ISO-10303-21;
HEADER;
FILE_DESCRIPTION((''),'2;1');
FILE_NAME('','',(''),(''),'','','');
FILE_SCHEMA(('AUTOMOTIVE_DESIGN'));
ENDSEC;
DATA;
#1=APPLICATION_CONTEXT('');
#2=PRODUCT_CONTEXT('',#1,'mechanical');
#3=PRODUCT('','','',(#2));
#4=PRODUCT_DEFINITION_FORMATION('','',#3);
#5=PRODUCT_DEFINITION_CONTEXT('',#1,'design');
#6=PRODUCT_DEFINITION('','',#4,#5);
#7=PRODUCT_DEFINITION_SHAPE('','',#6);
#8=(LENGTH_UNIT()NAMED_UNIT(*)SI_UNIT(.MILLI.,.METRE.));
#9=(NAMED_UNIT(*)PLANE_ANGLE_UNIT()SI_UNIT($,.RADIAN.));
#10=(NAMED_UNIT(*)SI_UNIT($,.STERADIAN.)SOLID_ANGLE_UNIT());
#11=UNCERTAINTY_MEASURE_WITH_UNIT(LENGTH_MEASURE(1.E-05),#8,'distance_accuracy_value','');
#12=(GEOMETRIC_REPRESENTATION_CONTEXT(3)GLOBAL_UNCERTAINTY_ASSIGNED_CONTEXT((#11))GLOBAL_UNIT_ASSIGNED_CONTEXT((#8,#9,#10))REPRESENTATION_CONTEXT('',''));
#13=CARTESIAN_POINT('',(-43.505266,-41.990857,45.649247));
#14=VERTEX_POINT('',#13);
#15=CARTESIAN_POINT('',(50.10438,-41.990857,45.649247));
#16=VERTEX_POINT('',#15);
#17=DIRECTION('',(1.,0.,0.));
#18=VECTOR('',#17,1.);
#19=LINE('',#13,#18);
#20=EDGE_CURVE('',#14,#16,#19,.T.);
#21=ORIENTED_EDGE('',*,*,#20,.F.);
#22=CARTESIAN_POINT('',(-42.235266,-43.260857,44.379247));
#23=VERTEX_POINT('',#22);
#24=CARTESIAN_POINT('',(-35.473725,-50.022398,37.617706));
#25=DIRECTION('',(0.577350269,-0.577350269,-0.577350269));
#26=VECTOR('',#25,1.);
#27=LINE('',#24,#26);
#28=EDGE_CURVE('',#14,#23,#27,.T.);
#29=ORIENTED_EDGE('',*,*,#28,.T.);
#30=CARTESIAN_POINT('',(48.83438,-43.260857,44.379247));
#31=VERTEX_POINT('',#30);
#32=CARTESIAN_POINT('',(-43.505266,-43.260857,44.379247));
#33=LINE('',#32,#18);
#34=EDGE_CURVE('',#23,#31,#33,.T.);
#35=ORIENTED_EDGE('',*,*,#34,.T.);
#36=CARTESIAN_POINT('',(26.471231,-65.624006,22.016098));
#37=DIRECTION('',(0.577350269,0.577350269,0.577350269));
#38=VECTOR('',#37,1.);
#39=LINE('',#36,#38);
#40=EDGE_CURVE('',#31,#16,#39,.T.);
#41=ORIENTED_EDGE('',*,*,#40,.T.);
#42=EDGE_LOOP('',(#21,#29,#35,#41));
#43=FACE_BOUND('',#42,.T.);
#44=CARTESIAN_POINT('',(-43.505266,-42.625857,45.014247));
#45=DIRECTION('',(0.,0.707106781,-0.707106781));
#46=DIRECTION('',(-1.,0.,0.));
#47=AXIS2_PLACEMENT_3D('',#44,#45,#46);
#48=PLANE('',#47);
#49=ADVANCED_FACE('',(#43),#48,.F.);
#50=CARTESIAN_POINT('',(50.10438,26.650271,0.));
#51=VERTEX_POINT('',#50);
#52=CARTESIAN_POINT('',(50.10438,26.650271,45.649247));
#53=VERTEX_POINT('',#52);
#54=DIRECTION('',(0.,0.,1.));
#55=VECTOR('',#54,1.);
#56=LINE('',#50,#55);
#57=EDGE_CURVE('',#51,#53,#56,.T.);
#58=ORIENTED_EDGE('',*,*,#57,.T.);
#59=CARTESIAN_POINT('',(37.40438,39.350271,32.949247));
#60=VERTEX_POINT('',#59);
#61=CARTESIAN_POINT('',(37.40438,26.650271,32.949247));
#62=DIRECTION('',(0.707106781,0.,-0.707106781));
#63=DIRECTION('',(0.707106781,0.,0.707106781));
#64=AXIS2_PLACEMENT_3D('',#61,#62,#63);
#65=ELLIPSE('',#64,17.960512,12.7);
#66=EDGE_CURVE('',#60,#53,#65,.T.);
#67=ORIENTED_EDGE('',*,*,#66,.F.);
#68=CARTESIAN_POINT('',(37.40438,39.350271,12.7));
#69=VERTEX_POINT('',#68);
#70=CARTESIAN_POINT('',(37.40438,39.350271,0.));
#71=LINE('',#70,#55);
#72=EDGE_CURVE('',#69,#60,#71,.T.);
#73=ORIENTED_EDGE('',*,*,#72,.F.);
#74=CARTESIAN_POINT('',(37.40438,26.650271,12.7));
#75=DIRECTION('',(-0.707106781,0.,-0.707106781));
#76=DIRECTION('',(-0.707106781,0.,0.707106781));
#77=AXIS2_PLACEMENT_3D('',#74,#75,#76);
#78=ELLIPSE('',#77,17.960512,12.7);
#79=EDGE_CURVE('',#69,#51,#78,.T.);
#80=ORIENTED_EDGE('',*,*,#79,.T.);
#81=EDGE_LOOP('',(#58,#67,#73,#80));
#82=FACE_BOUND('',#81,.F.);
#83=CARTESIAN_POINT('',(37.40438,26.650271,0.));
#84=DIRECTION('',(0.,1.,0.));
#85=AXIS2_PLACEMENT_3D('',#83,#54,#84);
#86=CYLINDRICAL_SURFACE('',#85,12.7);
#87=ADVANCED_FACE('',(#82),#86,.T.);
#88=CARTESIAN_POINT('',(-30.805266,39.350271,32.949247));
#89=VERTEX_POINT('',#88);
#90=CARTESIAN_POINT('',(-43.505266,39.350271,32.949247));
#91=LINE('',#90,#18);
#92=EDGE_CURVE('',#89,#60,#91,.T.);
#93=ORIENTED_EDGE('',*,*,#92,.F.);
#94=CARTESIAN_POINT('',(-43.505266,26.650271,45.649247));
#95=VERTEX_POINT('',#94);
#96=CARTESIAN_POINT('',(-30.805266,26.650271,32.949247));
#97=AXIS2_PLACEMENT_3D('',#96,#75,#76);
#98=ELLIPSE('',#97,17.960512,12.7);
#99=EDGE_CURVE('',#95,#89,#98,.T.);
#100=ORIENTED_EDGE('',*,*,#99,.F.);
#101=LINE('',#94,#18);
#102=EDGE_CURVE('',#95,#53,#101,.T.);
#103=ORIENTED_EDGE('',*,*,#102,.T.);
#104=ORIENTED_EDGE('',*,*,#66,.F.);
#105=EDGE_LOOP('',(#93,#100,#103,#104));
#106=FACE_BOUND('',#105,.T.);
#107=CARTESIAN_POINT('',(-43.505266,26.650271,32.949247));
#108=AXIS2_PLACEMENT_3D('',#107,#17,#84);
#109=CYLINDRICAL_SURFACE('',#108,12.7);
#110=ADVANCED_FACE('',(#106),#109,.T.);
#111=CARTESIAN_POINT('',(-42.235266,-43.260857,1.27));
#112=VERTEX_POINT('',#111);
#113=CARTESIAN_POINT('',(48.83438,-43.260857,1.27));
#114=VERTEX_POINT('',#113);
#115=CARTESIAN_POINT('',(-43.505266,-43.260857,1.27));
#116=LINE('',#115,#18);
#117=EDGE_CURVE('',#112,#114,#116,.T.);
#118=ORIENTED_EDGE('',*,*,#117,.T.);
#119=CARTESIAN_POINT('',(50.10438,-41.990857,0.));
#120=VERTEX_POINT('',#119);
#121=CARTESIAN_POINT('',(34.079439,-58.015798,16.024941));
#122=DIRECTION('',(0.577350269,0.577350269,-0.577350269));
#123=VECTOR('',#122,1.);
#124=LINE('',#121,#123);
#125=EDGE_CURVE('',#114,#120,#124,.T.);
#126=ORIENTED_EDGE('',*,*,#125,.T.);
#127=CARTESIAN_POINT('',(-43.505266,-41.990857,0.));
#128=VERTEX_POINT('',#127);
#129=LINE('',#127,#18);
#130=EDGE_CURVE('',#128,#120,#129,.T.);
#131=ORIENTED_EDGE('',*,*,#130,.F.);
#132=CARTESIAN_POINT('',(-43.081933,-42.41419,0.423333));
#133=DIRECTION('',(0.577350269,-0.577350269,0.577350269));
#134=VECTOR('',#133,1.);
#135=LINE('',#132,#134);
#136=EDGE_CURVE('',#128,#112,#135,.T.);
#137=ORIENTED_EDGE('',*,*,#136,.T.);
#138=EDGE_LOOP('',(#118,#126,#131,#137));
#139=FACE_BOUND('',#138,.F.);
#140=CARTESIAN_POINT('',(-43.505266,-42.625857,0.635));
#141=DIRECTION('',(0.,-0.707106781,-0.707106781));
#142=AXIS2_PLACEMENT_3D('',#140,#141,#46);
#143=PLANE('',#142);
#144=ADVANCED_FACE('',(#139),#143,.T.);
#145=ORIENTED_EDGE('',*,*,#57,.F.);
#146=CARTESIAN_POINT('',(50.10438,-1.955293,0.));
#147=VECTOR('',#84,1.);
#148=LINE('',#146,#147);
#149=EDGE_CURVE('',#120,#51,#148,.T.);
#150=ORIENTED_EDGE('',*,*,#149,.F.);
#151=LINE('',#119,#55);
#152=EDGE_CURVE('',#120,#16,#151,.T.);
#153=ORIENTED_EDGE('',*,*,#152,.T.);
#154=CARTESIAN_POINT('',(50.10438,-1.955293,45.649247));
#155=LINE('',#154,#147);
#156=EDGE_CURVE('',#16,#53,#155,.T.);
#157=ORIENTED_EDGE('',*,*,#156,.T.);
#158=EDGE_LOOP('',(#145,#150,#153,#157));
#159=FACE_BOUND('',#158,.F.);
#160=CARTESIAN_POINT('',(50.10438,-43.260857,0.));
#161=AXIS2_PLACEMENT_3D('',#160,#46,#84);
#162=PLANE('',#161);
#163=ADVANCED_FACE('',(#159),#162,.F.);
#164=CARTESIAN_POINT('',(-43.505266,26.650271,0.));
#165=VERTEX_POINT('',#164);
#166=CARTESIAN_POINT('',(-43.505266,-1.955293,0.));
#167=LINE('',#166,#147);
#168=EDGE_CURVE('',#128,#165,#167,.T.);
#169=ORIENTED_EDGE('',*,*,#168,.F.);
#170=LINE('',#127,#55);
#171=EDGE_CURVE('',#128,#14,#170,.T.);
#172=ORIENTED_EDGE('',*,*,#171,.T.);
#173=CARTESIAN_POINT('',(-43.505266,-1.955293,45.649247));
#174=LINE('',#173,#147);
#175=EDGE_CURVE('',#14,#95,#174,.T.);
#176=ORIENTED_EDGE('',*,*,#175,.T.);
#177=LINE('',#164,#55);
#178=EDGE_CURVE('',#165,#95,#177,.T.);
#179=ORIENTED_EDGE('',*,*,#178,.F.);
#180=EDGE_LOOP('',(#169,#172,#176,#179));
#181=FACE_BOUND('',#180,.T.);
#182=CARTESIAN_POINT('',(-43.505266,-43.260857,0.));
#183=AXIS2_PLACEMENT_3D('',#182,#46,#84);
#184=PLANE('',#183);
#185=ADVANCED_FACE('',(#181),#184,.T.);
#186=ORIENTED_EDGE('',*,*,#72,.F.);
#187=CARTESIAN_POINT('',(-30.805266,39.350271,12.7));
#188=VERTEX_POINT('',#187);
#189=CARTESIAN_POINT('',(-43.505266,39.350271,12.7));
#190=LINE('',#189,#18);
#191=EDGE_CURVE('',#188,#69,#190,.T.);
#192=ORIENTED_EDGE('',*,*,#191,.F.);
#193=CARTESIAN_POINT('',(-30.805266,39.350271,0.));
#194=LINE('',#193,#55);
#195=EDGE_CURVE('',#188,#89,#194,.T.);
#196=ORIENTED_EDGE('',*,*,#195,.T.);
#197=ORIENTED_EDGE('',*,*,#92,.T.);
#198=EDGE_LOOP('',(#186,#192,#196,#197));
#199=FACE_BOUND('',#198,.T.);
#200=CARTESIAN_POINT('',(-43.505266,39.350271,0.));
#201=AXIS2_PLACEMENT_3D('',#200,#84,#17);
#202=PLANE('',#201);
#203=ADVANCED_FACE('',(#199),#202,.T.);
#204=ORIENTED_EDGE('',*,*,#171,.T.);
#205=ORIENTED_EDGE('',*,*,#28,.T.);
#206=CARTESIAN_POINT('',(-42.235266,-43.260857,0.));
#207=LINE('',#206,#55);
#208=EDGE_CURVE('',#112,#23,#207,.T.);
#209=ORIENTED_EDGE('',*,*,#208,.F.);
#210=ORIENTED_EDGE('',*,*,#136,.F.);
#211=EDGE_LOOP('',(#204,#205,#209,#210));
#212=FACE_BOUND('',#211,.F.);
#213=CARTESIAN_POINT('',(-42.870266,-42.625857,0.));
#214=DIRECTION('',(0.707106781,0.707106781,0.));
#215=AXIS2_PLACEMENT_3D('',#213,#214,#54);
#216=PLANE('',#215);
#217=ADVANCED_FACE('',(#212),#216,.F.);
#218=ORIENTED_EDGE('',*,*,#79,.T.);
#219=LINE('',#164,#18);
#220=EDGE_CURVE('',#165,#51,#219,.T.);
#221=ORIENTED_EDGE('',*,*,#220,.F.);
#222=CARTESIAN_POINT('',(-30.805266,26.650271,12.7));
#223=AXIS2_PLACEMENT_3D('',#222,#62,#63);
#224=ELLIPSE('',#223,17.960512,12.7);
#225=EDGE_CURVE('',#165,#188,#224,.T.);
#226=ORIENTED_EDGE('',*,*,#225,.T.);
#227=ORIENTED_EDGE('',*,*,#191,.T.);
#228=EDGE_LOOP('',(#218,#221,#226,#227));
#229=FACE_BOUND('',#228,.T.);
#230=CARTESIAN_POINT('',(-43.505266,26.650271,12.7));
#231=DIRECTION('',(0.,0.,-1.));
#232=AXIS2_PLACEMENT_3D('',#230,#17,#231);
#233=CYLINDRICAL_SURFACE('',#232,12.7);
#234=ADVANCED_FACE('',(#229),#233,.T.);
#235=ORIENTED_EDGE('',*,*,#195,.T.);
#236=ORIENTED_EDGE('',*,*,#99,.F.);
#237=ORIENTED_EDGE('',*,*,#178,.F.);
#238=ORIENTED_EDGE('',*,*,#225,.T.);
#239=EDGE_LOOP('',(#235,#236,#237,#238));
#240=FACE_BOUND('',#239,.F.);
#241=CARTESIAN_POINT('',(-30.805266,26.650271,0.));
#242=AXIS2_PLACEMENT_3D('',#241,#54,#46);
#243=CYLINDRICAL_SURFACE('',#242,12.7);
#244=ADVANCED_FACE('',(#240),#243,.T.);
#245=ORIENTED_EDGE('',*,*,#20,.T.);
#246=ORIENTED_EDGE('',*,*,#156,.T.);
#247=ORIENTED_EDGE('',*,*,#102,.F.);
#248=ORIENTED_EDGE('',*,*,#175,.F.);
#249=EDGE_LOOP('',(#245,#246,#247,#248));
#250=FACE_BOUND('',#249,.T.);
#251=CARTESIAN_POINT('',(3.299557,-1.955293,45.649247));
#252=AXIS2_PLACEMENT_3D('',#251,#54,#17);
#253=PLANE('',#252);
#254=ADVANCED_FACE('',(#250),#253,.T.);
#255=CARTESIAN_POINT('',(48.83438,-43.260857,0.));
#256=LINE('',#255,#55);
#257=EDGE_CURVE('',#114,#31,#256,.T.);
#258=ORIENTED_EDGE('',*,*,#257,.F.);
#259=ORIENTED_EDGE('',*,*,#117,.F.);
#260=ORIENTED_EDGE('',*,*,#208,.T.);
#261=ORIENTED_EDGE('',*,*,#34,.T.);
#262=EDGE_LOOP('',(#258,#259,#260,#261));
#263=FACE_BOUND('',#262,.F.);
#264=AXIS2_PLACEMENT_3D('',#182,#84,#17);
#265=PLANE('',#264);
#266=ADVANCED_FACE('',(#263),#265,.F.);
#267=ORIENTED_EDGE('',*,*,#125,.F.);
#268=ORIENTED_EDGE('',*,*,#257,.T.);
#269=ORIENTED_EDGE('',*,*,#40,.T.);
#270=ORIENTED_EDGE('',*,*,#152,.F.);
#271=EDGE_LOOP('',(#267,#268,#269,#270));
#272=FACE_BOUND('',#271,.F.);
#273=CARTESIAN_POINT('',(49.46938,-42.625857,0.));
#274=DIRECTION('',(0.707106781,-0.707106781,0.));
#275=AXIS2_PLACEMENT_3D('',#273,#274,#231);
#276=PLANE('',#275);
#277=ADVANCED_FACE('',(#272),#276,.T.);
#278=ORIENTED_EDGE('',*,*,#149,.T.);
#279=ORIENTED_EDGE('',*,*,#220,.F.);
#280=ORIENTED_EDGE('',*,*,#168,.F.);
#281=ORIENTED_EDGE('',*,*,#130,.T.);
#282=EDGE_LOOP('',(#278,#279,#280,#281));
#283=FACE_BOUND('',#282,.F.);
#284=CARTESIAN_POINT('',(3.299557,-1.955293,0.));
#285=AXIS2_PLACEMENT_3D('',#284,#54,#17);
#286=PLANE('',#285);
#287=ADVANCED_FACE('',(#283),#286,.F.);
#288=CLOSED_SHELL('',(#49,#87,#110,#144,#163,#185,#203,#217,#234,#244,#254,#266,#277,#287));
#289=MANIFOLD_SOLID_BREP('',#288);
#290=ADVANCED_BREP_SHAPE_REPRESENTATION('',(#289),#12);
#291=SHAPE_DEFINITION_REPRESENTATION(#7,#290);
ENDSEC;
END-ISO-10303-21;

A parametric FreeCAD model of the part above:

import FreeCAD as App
import Part
import Sketcher

V = App.Vector
Q = App.Units.Quantity


def edges_at(feature, points):
    """Names of the edges that pass closest to the given points."""
    edges = feature.Shape.Edges
    near = lambda p: min(range(len(edges)), key=lambda i: edges[i].distToShape(Part.Vertex(*p))[0])
    return sorted({f"Edge{near(p) + 1}" for p in points})


def add_polygon(sketch, points):
    """Adds a closed chain of lines whose ends are joined by coincident constraints."""
    first, n = sketch.GeometryCount, len(points)
    for a, b in zip(points, points[1:] + points[:1]):
        sketch.addGeometry(Part.LineSegment(App.Vector(*a, 0), App.Vector(*b, 0)), False)
    for i in range(n):
        sketch.addConstraint(Sketcher.Constraint("Coincident", first + i, 2, first + (i + 1) % n, 1))

doc = App.newDocument("Part")
body = doc.addObject("PartDesign::Body", "Body")

# Sketch on XY plane
sketch1 = body.newObject("Sketcher::SketchObject", "Sketch")
sketch1.AttachmentSupport = (doc.getObject("XY_Plane"), [""])
sketch1.MapMode = "FlatFace"
add_polygon(sketch1, [(-44, 39), (-44, -43), (50, -43), (50, 39)])  # lines 0-3
sketch1.addConstraint([
    Sketcher.Constraint("Vertical", 0),
    Sketcher.Constraint("Horizontal", 1),
    Sketcher.Constraint("Vertical", 2),
    Sketcher.Constraint("Horizontal", 3),
    Sketcher.Constraint("DistanceY", 0, 2, 0, 1, Q("82.611128 mm")),
    Sketcher.Constraint("DistanceX", 1, 1, 1, 2, Q("93.609646 mm")),
    Sketcher.Constraint("DistanceX", -1, 1, 1, 2, Q("50.10438 mm")),
    Sketcher.Constraint("DistanceY", -1, 1, 2, 2, Q("39.350271 mm")),
])
pad1 = body.newObject("PartDesign::Pad", "Pad")
pad1.Profile = sketch1
pad1.Length = 45.649247
doc.recompute()

chamfer = body.newObject("PartDesign::Chamfer", "Chamfer")
chamfer.Base = (pad1, edges_at(pad1, [
    (-43.505, -43.261, 22.825),
    (50.104, -43.261, 22.825),
    (3.3, -43.261, 0),
    (3.3, -43.261, 45.649),
]))
chamfer.Size = Q("0.05 in")
doc.recompute()

fillet = body.newObject("PartDesign::Fillet", "Fillet")
fillet.Base = (chamfer, edges_at(chamfer, [
    (50.104, 39.35, 22.825),
    (-43.505, 39.35, 22.825),
    (3.3, 39.35, 0),
    (3.3, 39.35, 45.649),
]))
fillet.Radius = Q("0.5 in")

doc.recompute()
